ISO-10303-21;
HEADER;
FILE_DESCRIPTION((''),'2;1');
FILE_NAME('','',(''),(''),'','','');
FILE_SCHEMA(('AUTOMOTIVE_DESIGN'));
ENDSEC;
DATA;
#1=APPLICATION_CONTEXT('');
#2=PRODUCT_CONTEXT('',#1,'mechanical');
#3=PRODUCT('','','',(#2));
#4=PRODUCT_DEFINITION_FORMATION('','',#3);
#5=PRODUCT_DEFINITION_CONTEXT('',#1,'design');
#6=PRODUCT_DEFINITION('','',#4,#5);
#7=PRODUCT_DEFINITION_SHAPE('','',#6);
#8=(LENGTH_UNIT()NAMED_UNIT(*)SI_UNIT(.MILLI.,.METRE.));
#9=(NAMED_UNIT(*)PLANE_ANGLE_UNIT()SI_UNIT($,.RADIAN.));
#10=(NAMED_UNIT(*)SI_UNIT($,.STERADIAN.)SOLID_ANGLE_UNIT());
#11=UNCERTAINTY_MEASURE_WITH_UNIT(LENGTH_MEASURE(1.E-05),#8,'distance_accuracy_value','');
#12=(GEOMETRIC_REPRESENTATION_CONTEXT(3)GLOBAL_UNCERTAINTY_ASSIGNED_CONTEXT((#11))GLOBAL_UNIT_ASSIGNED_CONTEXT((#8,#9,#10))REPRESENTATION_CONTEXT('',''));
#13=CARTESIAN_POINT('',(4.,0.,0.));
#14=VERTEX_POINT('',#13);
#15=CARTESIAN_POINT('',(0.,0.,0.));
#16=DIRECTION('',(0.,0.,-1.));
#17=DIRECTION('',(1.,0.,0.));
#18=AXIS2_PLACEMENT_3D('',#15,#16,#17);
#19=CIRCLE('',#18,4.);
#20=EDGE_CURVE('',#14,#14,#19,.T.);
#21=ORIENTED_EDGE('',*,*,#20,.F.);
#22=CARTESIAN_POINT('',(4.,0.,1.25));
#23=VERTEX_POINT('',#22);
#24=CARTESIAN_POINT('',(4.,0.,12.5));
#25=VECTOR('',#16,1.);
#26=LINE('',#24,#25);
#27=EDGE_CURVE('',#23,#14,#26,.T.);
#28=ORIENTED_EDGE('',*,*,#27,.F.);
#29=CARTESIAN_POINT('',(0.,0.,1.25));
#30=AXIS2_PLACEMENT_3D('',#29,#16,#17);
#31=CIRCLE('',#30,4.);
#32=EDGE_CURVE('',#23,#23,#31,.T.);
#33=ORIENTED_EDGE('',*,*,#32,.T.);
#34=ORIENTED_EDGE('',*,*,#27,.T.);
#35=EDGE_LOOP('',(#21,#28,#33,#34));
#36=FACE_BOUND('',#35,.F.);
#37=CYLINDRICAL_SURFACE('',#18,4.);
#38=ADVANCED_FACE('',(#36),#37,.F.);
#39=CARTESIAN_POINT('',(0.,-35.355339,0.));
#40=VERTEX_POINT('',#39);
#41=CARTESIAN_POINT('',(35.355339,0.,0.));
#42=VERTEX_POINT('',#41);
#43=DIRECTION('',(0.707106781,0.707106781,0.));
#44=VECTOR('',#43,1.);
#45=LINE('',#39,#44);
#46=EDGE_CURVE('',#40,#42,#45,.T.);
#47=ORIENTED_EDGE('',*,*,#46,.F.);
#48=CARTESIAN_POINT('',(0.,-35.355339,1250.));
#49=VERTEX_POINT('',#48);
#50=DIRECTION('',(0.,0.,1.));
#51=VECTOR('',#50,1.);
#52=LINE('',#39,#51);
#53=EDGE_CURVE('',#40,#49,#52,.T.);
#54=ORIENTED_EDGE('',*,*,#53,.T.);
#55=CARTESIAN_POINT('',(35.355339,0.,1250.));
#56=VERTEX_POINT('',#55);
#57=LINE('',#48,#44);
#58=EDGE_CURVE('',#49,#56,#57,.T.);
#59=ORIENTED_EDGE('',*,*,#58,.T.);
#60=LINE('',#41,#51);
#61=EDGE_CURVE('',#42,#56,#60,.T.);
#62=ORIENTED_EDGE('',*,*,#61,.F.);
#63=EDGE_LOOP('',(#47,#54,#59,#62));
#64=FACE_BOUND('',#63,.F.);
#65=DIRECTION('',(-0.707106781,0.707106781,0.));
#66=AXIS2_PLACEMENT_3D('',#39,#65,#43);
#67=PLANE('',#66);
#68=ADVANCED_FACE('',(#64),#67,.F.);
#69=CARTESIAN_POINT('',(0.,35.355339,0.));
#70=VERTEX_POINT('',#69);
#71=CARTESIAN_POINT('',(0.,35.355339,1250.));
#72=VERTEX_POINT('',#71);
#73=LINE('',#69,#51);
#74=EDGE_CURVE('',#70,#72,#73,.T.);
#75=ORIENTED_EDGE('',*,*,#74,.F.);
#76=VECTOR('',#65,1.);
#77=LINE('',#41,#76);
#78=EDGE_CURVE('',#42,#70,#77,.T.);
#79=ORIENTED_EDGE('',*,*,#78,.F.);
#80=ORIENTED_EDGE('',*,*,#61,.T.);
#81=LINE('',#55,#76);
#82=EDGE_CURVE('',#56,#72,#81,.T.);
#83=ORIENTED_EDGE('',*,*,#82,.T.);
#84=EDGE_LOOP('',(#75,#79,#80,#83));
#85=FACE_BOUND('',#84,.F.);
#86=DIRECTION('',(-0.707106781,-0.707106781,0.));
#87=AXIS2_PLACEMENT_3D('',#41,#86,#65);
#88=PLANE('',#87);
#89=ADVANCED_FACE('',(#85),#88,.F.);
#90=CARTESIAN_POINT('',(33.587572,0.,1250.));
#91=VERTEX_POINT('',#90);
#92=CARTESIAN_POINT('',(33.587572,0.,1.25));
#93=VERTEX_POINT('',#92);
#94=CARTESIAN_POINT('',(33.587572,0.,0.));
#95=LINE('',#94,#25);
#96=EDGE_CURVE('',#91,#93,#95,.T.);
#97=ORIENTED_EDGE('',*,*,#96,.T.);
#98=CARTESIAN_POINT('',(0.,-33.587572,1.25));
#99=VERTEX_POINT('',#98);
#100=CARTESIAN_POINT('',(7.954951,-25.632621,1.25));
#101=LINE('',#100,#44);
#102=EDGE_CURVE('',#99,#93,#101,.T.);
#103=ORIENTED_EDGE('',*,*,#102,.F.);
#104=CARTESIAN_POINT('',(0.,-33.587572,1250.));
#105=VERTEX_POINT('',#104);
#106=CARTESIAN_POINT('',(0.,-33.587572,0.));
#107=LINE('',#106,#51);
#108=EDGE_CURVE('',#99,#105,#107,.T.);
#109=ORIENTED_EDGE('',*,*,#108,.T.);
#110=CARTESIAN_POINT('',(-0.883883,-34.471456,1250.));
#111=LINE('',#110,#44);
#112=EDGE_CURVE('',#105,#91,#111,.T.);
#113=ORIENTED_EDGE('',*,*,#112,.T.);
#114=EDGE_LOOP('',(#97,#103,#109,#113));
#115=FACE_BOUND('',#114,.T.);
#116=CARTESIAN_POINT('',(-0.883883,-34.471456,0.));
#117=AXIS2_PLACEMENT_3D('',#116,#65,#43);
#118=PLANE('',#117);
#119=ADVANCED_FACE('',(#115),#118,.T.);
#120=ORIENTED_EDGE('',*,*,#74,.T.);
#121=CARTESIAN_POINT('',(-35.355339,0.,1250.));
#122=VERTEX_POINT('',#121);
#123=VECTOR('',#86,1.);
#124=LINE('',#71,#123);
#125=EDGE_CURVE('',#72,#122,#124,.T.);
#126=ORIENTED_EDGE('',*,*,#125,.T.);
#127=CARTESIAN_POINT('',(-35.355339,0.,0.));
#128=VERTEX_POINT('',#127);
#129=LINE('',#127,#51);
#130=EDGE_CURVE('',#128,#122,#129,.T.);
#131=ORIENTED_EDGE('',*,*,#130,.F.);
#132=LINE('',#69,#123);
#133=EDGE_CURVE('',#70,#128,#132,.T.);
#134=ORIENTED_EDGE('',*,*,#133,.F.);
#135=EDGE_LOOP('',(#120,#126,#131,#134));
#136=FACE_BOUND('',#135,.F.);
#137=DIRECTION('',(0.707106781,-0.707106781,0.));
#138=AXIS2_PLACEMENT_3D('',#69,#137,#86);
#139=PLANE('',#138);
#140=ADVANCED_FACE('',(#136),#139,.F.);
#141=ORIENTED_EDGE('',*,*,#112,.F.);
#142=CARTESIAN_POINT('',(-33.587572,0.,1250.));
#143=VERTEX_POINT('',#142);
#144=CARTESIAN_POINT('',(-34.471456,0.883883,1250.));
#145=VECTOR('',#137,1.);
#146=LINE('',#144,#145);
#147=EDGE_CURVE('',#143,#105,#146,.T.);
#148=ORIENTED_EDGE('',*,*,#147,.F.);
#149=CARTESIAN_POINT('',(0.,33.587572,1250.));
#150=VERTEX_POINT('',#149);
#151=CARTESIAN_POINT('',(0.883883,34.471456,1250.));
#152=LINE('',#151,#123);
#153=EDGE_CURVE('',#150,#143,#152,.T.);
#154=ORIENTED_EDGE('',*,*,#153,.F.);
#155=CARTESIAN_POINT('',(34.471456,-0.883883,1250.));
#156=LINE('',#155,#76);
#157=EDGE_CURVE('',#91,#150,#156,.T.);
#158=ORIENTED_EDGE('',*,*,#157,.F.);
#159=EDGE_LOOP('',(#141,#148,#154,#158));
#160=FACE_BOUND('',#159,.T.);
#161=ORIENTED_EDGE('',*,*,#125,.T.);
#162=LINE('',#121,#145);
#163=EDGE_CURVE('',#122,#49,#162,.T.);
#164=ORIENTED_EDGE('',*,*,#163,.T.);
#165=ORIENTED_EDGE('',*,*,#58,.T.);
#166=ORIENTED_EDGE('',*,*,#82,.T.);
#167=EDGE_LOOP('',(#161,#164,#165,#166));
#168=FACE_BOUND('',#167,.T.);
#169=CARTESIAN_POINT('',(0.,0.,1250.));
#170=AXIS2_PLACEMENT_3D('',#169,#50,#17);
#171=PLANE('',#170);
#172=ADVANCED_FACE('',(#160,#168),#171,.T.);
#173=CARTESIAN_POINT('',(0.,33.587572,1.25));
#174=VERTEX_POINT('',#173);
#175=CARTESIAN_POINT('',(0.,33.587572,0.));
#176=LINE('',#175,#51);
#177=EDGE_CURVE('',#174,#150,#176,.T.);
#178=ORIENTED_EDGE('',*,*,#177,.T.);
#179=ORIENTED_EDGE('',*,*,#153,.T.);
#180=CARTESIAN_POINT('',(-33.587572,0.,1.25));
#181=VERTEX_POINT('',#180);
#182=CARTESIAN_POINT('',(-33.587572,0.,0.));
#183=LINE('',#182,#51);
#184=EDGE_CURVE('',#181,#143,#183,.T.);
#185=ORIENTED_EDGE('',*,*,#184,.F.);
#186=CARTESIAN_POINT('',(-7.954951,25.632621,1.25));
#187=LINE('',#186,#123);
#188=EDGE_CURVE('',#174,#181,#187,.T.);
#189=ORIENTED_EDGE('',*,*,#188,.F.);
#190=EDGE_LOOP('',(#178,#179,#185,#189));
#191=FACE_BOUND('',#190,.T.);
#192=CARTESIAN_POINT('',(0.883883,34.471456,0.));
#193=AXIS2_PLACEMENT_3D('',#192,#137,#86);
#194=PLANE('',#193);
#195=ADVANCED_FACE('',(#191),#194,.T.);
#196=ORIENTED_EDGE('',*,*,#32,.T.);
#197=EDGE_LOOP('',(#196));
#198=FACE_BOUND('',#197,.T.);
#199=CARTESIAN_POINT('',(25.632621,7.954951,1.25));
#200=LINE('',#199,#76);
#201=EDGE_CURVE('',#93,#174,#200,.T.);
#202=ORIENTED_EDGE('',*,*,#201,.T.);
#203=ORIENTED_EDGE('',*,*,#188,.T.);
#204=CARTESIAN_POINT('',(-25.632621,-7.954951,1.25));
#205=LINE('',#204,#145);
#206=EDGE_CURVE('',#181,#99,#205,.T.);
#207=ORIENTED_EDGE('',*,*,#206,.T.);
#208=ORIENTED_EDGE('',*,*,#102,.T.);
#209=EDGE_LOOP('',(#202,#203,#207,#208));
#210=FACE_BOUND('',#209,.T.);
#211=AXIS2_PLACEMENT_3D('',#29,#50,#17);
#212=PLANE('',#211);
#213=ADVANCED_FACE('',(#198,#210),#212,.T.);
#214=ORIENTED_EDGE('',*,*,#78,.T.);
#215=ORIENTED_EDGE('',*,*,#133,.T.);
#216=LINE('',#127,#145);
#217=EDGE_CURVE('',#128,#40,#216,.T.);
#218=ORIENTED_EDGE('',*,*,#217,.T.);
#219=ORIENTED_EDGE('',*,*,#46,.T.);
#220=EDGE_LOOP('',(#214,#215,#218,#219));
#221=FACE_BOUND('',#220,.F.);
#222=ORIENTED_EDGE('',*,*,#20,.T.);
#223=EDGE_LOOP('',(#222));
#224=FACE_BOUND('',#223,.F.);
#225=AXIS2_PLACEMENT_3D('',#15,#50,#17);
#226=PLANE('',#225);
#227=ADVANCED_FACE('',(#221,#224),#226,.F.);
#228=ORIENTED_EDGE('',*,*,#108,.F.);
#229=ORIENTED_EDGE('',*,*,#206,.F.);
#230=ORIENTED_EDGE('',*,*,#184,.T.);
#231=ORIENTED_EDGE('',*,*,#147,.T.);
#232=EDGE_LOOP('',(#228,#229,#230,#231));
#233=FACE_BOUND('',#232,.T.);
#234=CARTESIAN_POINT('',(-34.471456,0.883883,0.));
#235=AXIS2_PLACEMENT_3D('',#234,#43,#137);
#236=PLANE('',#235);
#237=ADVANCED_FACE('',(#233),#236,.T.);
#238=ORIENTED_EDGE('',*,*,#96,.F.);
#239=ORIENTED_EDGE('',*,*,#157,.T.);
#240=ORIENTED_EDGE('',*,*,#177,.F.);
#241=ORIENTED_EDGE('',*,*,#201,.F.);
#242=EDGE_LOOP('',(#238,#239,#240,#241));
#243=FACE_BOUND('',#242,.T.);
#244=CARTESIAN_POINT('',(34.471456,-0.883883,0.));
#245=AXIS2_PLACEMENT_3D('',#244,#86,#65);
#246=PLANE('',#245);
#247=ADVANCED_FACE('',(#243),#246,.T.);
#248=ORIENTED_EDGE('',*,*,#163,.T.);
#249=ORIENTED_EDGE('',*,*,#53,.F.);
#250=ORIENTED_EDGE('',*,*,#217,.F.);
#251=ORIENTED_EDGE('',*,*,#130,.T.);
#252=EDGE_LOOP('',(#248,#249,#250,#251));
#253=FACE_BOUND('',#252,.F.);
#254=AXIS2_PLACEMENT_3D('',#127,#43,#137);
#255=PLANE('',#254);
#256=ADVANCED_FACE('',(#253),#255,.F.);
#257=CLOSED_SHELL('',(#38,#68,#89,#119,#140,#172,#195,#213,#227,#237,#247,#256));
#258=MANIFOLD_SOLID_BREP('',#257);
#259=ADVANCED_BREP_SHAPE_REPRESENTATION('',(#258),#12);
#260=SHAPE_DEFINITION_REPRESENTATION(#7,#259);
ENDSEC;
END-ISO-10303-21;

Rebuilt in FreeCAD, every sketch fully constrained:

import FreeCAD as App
import Part
import Sketcher
from FreeCAD import Vector
Q = App.Units.Quantity


def faces_at(feature, points):
    """Names of the faces that lie closest to the given points."""
    faces = feature.Shape.Faces
    near = lambda p: min(range(len(faces)), key=lambda i: faces[i].distToShape(Part.Vertex(*p))[0])
    return sorted({f"Face{near(p) + 1}" for p in points})


def add_polygon(sketch, points):
    """Adds a closed chain of lines whose ends are joined by coincident constraints."""
    first, n = sketch.GeometryCount, len(points)
    for a, b in zip(points, points[1:] + points[:1]):
        sketch.addGeometry(Part.LineSegment(App.Vector(*a, 0), App.Vector(*b, 0)), False)
    for i in range(n):
        sketch.addConstraint(Sketcher.Constraint("Coincident", first + i, 2, first + (i + 1) % n, 1))

doc = App.newDocument("Part")
body = doc.addObject("PartDesign::Body", "Body")

# Sketch on XY plane
sketch1 = body.newObject("Sketcher::SketchObject", "Sketch")
sketch1.AttachmentSupport = (doc.getObject("XY_Plane"), [""])
sketch1.MapMode = "FlatFace"
add_polygon(sketch1, [(35.355339, 0), (0, 35.355339), (-35.355339, 0), (0, -35.355339)])  # lines 0-3
sketch1.addConstraint([
    Sketcher.Constraint("Symmetric", 0, 2, 2, 2, -1, 1),
    Sketcher.Constraint("Symmetric", 1, 2, 3, 2, -1, 1),
    Sketcher.Constraint("PointOnObject", 0, 2, -2),
    Sketcher.Constraint("PointOnObject", 1, 2, -1),
    Sketcher.Constraint("Perpendicular", 0, 1),
    Sketcher.Constraint("Distance", 0, Q("50 mm")),
])
pad1 = body.newObject("PartDesign::Pad", "Pad")
pad1.Profile = sketch1
pad1.Length = 1250
doc.recompute()

thickness = body.newObject("PartDesign::Thickness", "Thickness")
thickness.Base = (pad1, faces_at(pad1, [(0, 0, 1250)]))
thickness.Value = 1.25
thickness.Reversed = True
thickness.Join = "Arc"

# Sketch on XY plane
sketch2 = body.newObject("Sketcher::SketchObject", "Sketch001")
sketch2.AttachmentSupport = (doc.getObject("XY_Plane"), [""])
sketch2.MapMode = "FlatFace"
sketch2.addGeometry(Part.Circle(Vector(0, 0, 0), Vector(0, 0, 1), 4), False)
sketch2.addConstraint([
    Sketcher.Constraint("Coincident", 0, 3, -1, 1),
    Sketcher.Constraint("Diameter", 0, Q("8 mm")),
])
pocket1 = body.newObject("PartDesign::Pocket", "Pocket")
pocket1.Profile = sketch2
pocket1.Length = 25
pocket1.Midplane = True

doc.recompute()
